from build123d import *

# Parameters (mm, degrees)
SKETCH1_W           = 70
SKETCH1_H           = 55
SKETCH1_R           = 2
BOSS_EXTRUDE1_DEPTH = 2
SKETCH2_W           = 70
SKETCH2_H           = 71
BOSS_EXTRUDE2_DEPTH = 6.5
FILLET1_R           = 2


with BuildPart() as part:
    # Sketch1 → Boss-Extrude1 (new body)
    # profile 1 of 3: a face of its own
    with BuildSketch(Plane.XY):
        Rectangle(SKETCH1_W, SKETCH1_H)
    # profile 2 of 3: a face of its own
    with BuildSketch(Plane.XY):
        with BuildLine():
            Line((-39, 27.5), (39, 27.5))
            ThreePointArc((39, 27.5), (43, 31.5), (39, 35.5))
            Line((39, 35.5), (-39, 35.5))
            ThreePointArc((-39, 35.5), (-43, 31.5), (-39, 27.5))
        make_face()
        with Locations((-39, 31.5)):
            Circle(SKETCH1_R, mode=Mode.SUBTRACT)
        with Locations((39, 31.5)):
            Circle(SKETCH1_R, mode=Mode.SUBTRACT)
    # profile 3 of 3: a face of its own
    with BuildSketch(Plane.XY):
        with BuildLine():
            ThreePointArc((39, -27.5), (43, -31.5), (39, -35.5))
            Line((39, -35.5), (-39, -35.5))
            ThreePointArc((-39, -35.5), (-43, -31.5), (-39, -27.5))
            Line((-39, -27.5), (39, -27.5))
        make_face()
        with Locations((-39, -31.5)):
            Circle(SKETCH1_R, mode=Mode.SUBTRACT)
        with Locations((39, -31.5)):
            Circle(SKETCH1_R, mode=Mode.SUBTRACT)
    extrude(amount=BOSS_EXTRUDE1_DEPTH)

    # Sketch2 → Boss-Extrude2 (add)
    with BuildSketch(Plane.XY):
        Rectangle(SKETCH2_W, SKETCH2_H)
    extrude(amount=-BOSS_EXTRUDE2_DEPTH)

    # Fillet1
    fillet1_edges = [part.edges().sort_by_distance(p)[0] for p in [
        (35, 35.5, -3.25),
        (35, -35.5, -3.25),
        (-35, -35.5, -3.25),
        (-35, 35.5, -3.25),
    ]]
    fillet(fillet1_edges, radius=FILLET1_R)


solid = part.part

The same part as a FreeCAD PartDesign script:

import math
import FreeCAD as App
import Part
import Sketcher
from FreeCAD import Vector


def edges_at(feature, points):
    """Names of the edges that pass closest to the given points."""
    edges = feature.Shape.Edges
    near = lambda p: min(range(len(edges)), key=lambda i: edges[i].distToShape(Part.Vertex(*p))[0])
    return sorted({f"Edge{near(p) + 1}" for p in points})

doc = App.newDocument("Part")
params = doc.addObject("Spreadsheet::Sheet", "Params")
for row, (alias, value) in enumerate([
    ("sketch1_diameter", "4 mm"),
    ("sketch1_radius", "4 mm"),
    ("sketch1_width", "4 mm"),
    ("sketch1_width2", "78 mm"),
    ("sketch1_height", "55 mm"),
    ("pad1_length", "2 mm"),
    ("sketch2_width", "70 mm"),
    ("sketch2_height", "71 mm"),
    ("pad2_length", "6.5 mm"),
    ("fillet_radius", "2 mm"),
], start=1):
    params.set(f"A{row}", alias)
    params.set(f"B{row}", "=" + value)
    params.setAlias(f"B{row}", alias)

body = doc.addObject("PartDesign::Body", "Body")

sketch1 = body.newObject("Sketcher::SketchObject", "Sketch")
sketch1.AttachmentSupport = (doc.getObject("XY_Plane"), [""])
sketch1.MapMode = "FlatFace"
sketch1.addGeometry(Part.LineSegment(Vector(-35, 27.5, 0), Vector(-35, -27.5, 0)), False)
sketch1.addGeometry(Part.LineSegment(Vector(-35, -27.5, 0), Vector(-39, -27.5, 0)), False)
sketch1.addGeometry(Part.ArcOfCircle(Part.Circle(Vector(-39, -31.5, 0), Vector(0, 0, 1), 4), math.radians(90), math.radians(270)), False)
sketch1.addGeometry(Part.LineSegment(Vector(-39, -35.5, 0), Vector(39, -35.5, 0)), False)
sketch1.addGeometry(Part.ArcOfCircle(Part.Circle(Vector(39, -31.5, 0), Vector(0, 0, 1), 4), math.radians(-90), math.radians(90)), False)
sketch1.addGeometry(Part.LineSegment(Vector(39, -27.5, 0), Vector(35, -27.5, 0)), False)
sketch1.addGeometry(Part.LineSegment(Vector(35, -27.5, 0), Vector(35, 27.5, 0)), False)
sketch1.addGeometry(Part.LineSegment(Vector(35, 27.5, 0), Vector(39, 27.5, 0)), False)
sketch1.addGeometry(Part.ArcOfCircle(Part.Circle(Vector(39, 31.5, 0), Vector(0, 0, 1), 4), math.radians(-90), math.radians(90)), False)
sketch1.addGeometry(Part.LineSegment(Vector(39, 35.5, 0), Vector(-39, 35.5, 0)), False)
sketch1.addGeometry(Part.ArcOfCircle(Part.Circle(Vector(-39, 31.5, 0), Vector(0, 0, 1), 4), math.radians(90), math.radians(270)), False)
sketch1.addGeometry(Part.LineSegment(Vector(-39, 27.5, 0), Vector(-35, 27.5, 0)), False)
sketch1.addGeometry(Part.Circle(Vector(-39, -31.5, 0), Vector(0, 0, 1), 2), False)
sketch1.addGeometry(Part.Circle(Vector(39, -31.5, 0), Vector(0, 0, 1), 2), False)
sketch1.addGeometry(Part.Circle(Vector(39, 31.5, 0), Vector(0, 0, 1), 2), False)
sketch1.addGeometry(Part.Circle(Vector(-39, 31.5, 0), Vector(0, 0, 1), 2), False)
sketch1.addConstraint(Sketcher.Constraint("Coincident", 0, 2, 1, 1))
sketch1.addConstraint(Sketcher.Constraint("Tangent", 1, 2, 2, 1))
sketch1.addConstraint(Sketcher.Constraint("Tangent", 2, 2, 3, 1))
sketch1.addConstraint(Sketcher.Constraint("Tangent", 3, 2, 4, 1))
sketch1.addConstraint(Sketcher.Constraint("Tangent", 4, 2, 5, 1))
sketch1.addConstraint(Sketcher.Constraint("Coincident", 5, 2, 6, 1))
sketch1.addConstraint(Sketcher.Constraint("Coincident", 6, 2, 7, 1))
sketch1.addConstraint(Sketcher.Constraint("Tangent", 7, 2, 8, 1))
sketch1.addConstraint(Sketcher.Constraint("Tangent", 8, 2, 9, 1))
sketch1.addConstraint(Sketcher.Constraint("Tangent", 9, 2, 10, 1))
sketch1.addConstraint(Sketcher.Constraint("Tangent", 10, 2, 11, 1))
sketch1.addConstraint(Sketcher.Constraint("Coincident", 11, 2, 0, 1))
sketch1.addConstraint(Sketcher.Constraint("Vertical", 0))
sketch1.addConstraint(Sketcher.Constraint("Horizontal", 1))
sketch1.addConstraint(Sketcher.Constraint("Horizontal", 3))
sketch1.addConstraint(Sketcher.Constraint("Horizontal", 5))
sketch1.addConstraint(Sketcher.Constraint("Vertical", 6))
sketch1.addConstraint(Sketcher.Constraint("Horizontal", 7))
sketch1.addConstraint(Sketcher.Constraint("Horizontal", 9))
sketch1.addConstraint(Sketcher.Constraint("Horizontal", 11))
sketch1.addConstraint(Sketcher.Constraint("Coincident", 12, 3, 2, 3))
sketch1.addConstraint(Sketcher.Constraint("Coincident", 13, 3, 4, 3))
sketch1.addConstraint(Sketcher.Constraint("Coincident", 14, 3, 8, 3))
sketch1.addConstraint(Sketcher.Constraint("Coincident", 15, 3, 10, 3))
sketch1.addConstraint(Sketcher.Constraint("Equal", 2, 4))
sketch1.addConstraint(Sketcher.Constraint("Equal", 4, 8))
sketch1.addConstraint(Sketcher.Constraint("Equal", 8, 10))
sketch1.addConstraint(Sketcher.Constraint("Equal", 12, 13))
sketch1.addConstraint(Sketcher.Constraint("Equal", 13, 14))
sketch1.addConstraint(Sketcher.Constraint("Equal", 14, 15))
sketch1.addConstraint(Sketcher.Constraint("Symmetric", 2, 3, 8, 3, -1, 1))
sketch1.addConstraint(Sketcher.Constraint("Vertical", 4, 3, 8, 3))
sketch1.addConstraint(Sketcher.Constraint("Vertical", 2, 3, 10, 3))
sketch1.addConstraint(Sketcher.Constraint("Equal", 1, 5))
sketch1.addConstraint(Sketcher.Constraint("Diameter", 12, 4.0))
sketch1.addConstraint(Sketcher.Constraint("Radius", 2, 4.0))
sketch1.addConstraint(Sketcher.Constraint("DistanceX", 1, 2, 1, 1, 4.0))
sketch1.addConstraint(Sketcher.Constraint("DistanceX", 3, 1, 3, 2, 78.0))
sketch1.addConstraint(Sketcher.Constraint("DistanceY", 0, 2, 0, 1, 55.0))
sketch1.setExpression("Constraints[34]", "Params.sketch1_diameter")
sketch1.setExpression("Constraints[35]", "Params.sketch1_radius")
sketch1.setExpression("Constraints[36]", "Params.sketch1_width")
sketch1.setExpression("Constraints[37]", "Params.sketch1_width2")
sketch1.setExpression("Constraints[38]", "Params.sketch1_height")
pad1 = body.newObject("PartDesign::Pad", "Pad")
pad1.Profile = sketch1
pad1.setExpression("Length", "Params.pad1_length")

sketch2 = body.newObject("Sketcher::SketchObject", "Sketch001")
sketch2.AttachmentSupport = (doc.getObject("XY_Plane"), [""])
sketch2.MapMode = "FlatFace"
sketch2.addGeometry(Part.LineSegment(Vector(-35, 35.5, 0), Vector(-35, -35.5, 0)), False)
sketch2.addGeometry(Part.LineSegment(Vector(-35, -35.5, 0), Vector(35, -35.5, 0)), False)
sketch2.addGeometry(Part.LineSegment(Vector(35, -35.5, 0), Vector(35, 35.5, 0)), False)
sketch2.addGeometry(Part.LineSegment(Vector(35, 35.5, 0), Vector(-35, 35.5, 0)), False)
sketch2.addConstraint(Sketcher.Constraint("Coincident", 0, 2, 1, 1))
sketch2.addConstraint(Sketcher.Constraint("Coincident", 1, 2, 2, 1))
sketch2.addConstraint(Sketcher.Constraint("Coincident", 2, 2, 3, 1))
sketch2.addConstraint(Sketcher.Constraint("Coincident", 3, 2, 0, 1))
sketch2.addConstraint(Sketcher.Constraint("Vertical", 0))
sketch2.addConstraint(Sketcher.Constraint("Horizontal", 1))
sketch2.addConstraint(Sketcher.Constraint("Vertical", 2))
sketch2.addConstraint(Sketcher.Constraint("Horizontal", 3))
sketch2.addConstraint(Sketcher.Constraint("Symmetric", 0, 2, 2, 2, -1, 1))
sketch2.addConstraint(Sketcher.Constraint("DistanceX", 1, 1, 1, 2, 70.0))
sketch2.addConstraint(Sketcher.Constraint("DistanceY", 0, 2, 0, 1, 71.0))
sketch2.setExpression("Constraints[9]", "Params.sketch2_width")
sketch2.setExpression("Constraints[10]", "Params.sketch2_height")
pad2 = body.newObject("PartDesign::Pad", "Pad001")
pad2.Profile = sketch2
pad2.setExpression("Length", "Params.pad2_length")
pad2.Reversed = True
doc.recompute()

fillet = body.newObject("PartDesign::Fillet", "Fillet")
fillet.Base = (pad2, edges_at(pad2, [
    (35, 35.5, -3.25),
    (35, -35.5, -3.25),
    (-35, -35.5, -3.25),
    (-35, 35.5, -3.25),
]))
fillet.setExpression("Radius", "Params.fillet_radius")

doc.recompute()
